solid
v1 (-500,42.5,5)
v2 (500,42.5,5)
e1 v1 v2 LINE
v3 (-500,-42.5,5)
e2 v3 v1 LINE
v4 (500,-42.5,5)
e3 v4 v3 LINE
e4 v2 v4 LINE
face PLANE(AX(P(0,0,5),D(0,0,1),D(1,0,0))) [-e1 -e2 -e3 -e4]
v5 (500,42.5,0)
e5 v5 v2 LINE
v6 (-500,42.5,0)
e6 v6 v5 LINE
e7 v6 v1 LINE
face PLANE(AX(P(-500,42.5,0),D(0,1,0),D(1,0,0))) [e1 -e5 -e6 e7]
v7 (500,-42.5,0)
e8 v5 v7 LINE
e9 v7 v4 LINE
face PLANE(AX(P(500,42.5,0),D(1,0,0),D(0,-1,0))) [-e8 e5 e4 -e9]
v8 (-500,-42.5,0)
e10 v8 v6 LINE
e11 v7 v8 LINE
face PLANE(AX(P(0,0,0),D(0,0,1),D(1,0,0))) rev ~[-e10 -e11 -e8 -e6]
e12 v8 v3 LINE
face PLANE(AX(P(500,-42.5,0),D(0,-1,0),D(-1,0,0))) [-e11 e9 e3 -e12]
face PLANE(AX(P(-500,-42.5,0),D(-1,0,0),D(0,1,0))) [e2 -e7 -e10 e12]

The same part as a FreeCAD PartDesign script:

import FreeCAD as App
import Part
import Sketcher
Q = App.Units.Quantity


def add_polygon(sketch, points):
    """Adds a closed chain of lines whose ends are joined by coincident constraints."""
    first, n = sketch.GeometryCount, len(points)
    for a, b in zip(points, points[1:] + points[:1]):
        sketch.addGeometry(Part.LineSegment(App.Vector(*a, 0), App.Vector(*b, 0)), False)
    for i in range(n):
        sketch.addConstraint(Sketcher.Constraint("Coincident", first + i, 2, first + (i + 1) % n, 1))

doc = App.newDocument("Part")
body = doc.addObject("PartDesign::Body", "Body")

# Sketch on XY plane
sketch1 = doc.addObject("Sketcher::SketchObject", "Sketch")
body.addObject(sketch1)
sketch1.AttachmentSupport = (doc.XY_Plane, [""])
sketch1.MapMode = "FlatFace"
add_polygon(sketch1, [(500, 42.5), (-500, 42.5), (-500, -42.5), (500, -42.5)])  # lines 0-3
sketch1.addConstraint(Sketcher.Constraint("Horizontal", 0))
sketch1.addConstraint(Sketcher.Constraint("Vertical", 1))
sketch1.addConstraint(Sketcher.Constraint("Horizontal", 2))
sketch1.addConstraint(Sketcher.Constraint("Vertical", 3))
sketch1.addConstraint(Sketcher.Constraint("Symmetric", 0, 2, 2, 2, -1, 1))
sketch1.addConstraint(Sketcher.Constraint("DistanceX", 0, 2, 0, 1, Q("1000 mm")))
sketch1.addConstraint(Sketcher.Constraint("DistanceY", 1, 2, 1, 1, Q("85 mm")))
pad1 = doc.addObject("PartDesign::Pad", "Pad")
body.addObject(pad1)
pad1.Profile = sketch1
pad1.Length = 5

doc.recompute()
